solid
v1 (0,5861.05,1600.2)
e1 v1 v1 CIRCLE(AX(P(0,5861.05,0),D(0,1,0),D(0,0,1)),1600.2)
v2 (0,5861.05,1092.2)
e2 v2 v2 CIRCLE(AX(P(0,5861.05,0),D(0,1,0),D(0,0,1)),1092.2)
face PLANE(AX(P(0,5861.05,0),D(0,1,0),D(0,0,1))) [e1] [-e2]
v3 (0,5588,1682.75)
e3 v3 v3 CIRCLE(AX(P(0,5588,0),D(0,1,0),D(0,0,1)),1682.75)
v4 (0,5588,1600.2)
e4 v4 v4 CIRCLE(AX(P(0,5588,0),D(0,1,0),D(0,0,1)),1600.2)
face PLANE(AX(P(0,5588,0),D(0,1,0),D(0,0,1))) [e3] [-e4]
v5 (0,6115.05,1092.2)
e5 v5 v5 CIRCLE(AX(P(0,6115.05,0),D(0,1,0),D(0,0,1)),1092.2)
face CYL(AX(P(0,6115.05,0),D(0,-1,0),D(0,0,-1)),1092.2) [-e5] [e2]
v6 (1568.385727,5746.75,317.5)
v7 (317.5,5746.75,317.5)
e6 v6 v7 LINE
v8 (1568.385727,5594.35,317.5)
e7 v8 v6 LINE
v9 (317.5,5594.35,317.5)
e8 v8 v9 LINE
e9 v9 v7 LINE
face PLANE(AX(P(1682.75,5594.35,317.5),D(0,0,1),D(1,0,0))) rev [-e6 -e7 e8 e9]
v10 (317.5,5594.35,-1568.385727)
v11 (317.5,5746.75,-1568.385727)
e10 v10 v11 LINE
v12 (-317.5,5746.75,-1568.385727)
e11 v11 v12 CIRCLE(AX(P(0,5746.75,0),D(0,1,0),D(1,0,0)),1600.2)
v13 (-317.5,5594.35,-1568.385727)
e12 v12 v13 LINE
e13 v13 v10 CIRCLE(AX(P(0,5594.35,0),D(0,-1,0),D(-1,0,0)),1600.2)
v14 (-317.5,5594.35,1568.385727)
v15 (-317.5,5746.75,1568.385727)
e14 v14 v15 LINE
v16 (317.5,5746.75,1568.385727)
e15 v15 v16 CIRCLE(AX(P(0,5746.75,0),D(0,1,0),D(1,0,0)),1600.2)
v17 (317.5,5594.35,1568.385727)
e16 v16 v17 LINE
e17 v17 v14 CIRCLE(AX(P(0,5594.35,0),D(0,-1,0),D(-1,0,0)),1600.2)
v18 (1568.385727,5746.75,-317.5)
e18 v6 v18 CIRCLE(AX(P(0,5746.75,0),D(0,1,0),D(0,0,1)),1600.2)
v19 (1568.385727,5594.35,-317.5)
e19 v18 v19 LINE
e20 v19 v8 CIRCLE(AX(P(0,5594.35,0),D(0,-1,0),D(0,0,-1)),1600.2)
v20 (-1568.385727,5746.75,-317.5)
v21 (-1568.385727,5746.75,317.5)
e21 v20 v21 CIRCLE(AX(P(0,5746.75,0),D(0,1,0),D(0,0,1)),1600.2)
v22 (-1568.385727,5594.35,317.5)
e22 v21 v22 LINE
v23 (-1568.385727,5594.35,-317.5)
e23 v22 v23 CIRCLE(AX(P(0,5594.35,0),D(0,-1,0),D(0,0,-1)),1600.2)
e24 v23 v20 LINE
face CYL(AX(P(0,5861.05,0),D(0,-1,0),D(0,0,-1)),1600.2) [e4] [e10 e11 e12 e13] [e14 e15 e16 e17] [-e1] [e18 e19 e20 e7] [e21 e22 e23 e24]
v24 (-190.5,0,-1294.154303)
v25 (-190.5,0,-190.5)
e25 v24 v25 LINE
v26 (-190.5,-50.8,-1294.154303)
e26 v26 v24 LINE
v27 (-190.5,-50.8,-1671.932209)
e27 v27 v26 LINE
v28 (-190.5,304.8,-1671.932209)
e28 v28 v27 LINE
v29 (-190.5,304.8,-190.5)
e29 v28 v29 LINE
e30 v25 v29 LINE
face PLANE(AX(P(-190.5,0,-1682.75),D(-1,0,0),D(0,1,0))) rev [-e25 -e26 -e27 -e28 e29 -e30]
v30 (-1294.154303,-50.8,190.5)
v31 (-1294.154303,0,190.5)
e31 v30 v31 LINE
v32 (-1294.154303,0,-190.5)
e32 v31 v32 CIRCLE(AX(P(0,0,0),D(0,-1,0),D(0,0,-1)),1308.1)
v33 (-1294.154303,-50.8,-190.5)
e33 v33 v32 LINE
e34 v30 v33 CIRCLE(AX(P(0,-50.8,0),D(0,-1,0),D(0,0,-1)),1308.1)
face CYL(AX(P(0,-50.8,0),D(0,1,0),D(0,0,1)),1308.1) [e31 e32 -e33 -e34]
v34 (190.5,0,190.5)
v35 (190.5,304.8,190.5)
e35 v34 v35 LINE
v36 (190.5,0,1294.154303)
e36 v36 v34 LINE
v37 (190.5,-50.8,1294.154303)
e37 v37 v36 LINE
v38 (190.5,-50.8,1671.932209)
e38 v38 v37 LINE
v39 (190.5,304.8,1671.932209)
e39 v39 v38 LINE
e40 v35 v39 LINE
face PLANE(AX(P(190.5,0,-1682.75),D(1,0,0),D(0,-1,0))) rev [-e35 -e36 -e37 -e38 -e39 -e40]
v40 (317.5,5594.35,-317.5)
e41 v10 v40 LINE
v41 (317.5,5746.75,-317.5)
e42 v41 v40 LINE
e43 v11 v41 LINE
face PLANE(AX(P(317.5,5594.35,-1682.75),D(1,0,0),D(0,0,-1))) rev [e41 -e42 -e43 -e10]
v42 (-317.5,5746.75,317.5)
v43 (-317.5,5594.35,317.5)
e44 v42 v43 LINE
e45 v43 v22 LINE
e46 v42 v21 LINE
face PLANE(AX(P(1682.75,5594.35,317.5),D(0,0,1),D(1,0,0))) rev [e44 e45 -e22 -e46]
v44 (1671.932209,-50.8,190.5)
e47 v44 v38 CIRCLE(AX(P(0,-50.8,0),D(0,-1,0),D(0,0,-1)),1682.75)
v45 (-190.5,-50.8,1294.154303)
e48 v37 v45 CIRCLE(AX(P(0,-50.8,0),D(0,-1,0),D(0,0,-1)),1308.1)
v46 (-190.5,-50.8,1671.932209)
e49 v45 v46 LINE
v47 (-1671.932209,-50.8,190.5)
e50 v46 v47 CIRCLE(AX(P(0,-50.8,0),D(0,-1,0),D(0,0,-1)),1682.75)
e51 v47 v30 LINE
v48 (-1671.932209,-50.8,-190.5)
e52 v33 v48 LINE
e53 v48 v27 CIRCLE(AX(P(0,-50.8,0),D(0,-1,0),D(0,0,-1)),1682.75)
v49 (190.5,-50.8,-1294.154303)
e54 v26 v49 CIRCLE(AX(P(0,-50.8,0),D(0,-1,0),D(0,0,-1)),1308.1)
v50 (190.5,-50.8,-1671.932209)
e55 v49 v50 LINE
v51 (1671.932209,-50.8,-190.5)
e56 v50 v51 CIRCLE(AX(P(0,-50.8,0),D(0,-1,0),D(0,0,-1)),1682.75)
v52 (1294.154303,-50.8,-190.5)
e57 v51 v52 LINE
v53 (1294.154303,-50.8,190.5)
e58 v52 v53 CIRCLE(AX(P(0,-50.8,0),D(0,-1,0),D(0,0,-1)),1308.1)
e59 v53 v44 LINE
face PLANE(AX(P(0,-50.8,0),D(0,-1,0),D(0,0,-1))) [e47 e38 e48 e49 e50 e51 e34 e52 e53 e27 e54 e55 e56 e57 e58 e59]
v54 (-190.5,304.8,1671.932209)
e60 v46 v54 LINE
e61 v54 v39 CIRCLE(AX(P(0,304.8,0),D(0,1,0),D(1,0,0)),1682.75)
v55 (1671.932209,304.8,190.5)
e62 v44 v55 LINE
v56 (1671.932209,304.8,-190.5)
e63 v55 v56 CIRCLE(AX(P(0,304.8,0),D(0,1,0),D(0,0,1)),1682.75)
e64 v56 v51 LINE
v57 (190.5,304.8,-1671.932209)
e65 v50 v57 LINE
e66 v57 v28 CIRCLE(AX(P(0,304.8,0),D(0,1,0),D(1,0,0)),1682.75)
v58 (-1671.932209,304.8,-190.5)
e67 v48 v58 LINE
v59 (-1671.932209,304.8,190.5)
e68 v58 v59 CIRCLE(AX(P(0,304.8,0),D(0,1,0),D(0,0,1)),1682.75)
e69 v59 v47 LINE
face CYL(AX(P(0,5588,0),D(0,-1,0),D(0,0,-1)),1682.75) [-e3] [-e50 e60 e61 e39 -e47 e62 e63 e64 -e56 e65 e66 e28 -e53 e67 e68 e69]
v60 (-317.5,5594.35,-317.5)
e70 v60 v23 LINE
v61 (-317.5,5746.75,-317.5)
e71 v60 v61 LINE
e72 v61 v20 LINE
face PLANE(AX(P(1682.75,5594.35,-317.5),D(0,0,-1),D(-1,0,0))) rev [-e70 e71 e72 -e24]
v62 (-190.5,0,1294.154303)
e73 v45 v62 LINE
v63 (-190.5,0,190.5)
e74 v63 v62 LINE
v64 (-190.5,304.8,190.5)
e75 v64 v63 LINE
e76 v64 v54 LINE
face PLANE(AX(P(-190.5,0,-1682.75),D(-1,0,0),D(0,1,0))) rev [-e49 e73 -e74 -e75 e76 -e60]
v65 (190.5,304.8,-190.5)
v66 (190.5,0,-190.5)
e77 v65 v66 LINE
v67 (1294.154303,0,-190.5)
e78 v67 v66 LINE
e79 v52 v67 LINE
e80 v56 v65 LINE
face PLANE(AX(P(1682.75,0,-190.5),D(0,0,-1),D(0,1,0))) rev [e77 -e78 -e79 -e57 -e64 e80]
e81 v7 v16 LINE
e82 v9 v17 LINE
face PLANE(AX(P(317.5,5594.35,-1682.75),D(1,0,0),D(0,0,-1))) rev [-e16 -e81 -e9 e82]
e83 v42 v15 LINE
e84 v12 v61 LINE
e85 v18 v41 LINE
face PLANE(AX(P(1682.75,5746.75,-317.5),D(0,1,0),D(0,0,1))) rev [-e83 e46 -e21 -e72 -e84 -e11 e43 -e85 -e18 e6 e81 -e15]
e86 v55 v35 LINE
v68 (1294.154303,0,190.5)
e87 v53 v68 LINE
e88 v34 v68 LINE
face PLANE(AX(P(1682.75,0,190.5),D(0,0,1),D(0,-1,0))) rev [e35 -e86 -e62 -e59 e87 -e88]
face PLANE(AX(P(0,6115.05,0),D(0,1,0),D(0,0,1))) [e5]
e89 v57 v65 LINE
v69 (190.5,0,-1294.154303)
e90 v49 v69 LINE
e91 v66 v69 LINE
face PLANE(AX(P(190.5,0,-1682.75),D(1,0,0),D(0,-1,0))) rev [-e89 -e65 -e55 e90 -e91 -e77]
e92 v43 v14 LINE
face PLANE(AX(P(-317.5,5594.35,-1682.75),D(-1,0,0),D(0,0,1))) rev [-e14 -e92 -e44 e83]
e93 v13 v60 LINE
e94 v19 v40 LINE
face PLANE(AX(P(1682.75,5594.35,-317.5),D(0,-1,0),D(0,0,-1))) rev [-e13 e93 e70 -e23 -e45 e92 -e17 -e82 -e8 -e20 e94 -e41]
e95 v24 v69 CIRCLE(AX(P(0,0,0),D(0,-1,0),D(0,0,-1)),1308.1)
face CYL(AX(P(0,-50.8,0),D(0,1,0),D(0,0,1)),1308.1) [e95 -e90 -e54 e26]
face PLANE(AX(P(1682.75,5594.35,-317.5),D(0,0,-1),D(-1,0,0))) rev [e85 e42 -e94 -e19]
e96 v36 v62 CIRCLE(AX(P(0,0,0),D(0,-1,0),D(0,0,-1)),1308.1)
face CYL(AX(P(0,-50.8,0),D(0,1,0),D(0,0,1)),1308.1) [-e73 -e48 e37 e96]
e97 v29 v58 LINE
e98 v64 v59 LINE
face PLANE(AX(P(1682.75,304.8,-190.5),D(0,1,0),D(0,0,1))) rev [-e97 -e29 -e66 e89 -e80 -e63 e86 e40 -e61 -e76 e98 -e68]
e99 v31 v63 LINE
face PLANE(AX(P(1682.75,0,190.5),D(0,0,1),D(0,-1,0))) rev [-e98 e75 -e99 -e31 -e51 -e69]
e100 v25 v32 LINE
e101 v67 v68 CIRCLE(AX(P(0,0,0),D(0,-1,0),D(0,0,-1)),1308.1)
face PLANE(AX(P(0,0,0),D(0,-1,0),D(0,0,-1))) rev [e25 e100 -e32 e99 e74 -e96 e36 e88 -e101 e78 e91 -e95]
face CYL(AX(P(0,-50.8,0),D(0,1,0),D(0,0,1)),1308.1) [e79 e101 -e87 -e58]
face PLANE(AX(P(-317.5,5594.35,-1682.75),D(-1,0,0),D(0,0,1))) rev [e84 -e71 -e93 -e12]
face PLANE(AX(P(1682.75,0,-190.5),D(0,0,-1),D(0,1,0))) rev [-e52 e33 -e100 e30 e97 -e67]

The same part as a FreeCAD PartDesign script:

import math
import FreeCAD as App
import Part
import Sketcher
Q = App.Units.Quantity

doc = App.newDocument("Part")
body = doc.addObject("PartDesign::Body", "Body")

# Sketch on XZ plane
sketch1 = body.newObject("Sketcher::SketchObject", "Sketch")
sketch1.AttachmentSupport = (doc.getObject("XZ_Plane"), [""])
sketch1.MapMode = "FlatFace"
sketch1.addGeometry(Part.Circle(App.Vector(0, 0, 0), App.Vector(0, 0, 1), 1683), False)
sketch1.addConstraint(Sketcher.Constraint("Coincident", 0, 3, -1, 1))
sketch1.addConstraint(Sketcher.Constraint("Diameter", 0, Q("132.5 in")))
pad1 = body.newObject("PartDesign::Pad", "Pad")
pad1.Profile = sketch1
pad1.Length = Q("220 in")
pad1.Reversed = True

# Sketch on XZ plane
sketch2 = body.newObject("Sketcher::SketchObject", "Sketch001")
sketch2.AttachmentSupport = (doc.getObject("XZ_Plane"), [""])
sketch2.MapMode = "FlatFace"
sketch2.AttachmentOffset = App.Placement(App.Vector(0, 0, -220 * 25.4), App.Rotation())
sketch2.addGeometry(Part.Circle(App.Vector(0, 0, 0), App.Vector(0, 0, 1), 1600), False)
sketch2.addConstraint(Sketcher.Constraint("Coincident", 0, 3, -1, 1))
sketch2.addConstraint(Sketcher.Constraint("Diameter", 0, Q("126 in")))
pad2 = body.newObject("PartDesign::Pad", "Pad001")
pad2.Profile = sketch2
pad2.Length = Q("10.75 in")
pad2.Reversed = True

# Sketch on XZ plane
sketch3 = body.newObject("Sketcher::SketchObject", "Sketch002")
sketch3.AttachmentSupport = (doc.getObject("XZ_Plane"), [""])
sketch3.MapMode = "FlatFace"
sketch3.AttachmentOffset = App.Placement(App.Vector(0, 0, -230.75 * 25.4), App.Rotation())
sketch3.addGeometry(Part.Circle(App.Vector(0, 0, 0), App.Vector(0, 0, 1), 1092), False)
sketch3.addConstraint(Sketcher.Constraint("Coincident", 0, 3, -1, 1))
sketch3.addConstraint(Sketcher.Constraint("Diameter", 0, Q("86 in")))
pad3 = body.newObject("PartDesign::Pad", "Pad002")
pad3.Profile = sketch3
pad3.Length = Q("10 in")
pad3.Reversed = True

# Sketch on YZ plane
sketch4 = body.newObject("Sketcher::SketchObject", "Sketch003")
sketch4.AttachmentSupport = (doc.getObject("YZ_Plane"), [""])
sketch4.MapMode = "FlatFace"
sketch4.AttachmentOffset = App.Placement(App.Vector(0, 0, -66.25 * 25.4), App.Rotation())
sketch4.addGeometry(Part.LineSegment(App.Vector(305, -190, 0), App.Vector(0, -190, 0)), False)
sketch4.addGeometry(Part.LineSegment(App.Vector(0, -190, 0), App.Vector(0, 190, 0)), False)
sketch4.addGeometry(Part.LineSegment(App.Vector(0, 190, 0), App.Vector(305, 190, 0)), False)
sketch4.addGeometry(Part.LineSegment(App.Vector(305, 190, 0), App.Vector(305, -190, 0)), False)
sketch4.addConstraint(Sketcher.Constraint("Coincident", 0, 2, 1, 1))
sketch4.addConstraint(Sketcher.Constraint("Coincident", 1, 2, 2, 1))
sketch4.addConstraint(Sketcher.Constraint("Coincident", 2, 2, 3, 1))
sketch4.addConstraint(Sketcher.Constraint("Coincident", 3, 2, 0, 1))
sketch4.addConstraint(Sketcher.Constraint("Horizontal", 0))
sketch4.addConstraint(Sketcher.Constraint("Vertical", 1))
sketch4.addConstraint(Sketcher.Constraint("Horizontal", 2))
sketch4.addConstraint(Sketcher.Constraint("Vertical", 3))
sketch4.addConstraint(Sketcher.Constraint("Symmetric", 0, 2, 1, 2, -1, 1))
sketch4.addConstraint(Sketcher.Constraint("DistanceX", 0, 2, 0, 1, Q("12 in")))
sketch4.addConstraint(Sketcher.Constraint("DistanceY", 1, 1, 1, 2, Q("15 in")))
pocket1 = body.newObject("PartDesign::Pocket", "Pocket")
pocket1.Profile = sketch4
pocket1.Type = "ThroughAll"
pocket1.Reversed = True
doc.recompute()

polarpattern = body.newObject("PartDesign::PolarPattern", "PolarPattern")
polarpattern.Originals = [pocket1]
polarpattern.Axis = (doc.getObject("Y_Axis"), [""])
polarpattern.Angle = 90
polarpattern.Occurrences = 2
polarpattern.Reversed = True
body.Tip = polarpattern

# Sketch on YZ plane
sketch5 = body.newObject("Sketcher::SketchObject", "Sketch004")
sketch5.AttachmentSupport = (doc.getObject("YZ_Plane"), [""])
sketch5.MapMode = "FlatFace"
sketch5.AttachmentOffset = App.Placement(App.Vector(0, 0, -66.25 * 25.4), App.Rotation())
sketch5.addGeometry(Part.LineSegment(App.Vector(5747, -318, 0), App.Vector(5594, -318, 0)), False)
sketch5.addGeometry(Part.LineSegment(App.Vector(5594, -318, 0), App.Vector(5594, 318, 0)), False)
sketch5.addGeometry(Part.LineSegment(App.Vector(5594, 318, 0), App.Vector(5747, 318, 0)), False)
sketch5.addGeometry(Part.LineSegment(App.Vector(5747, 318, 0), App.Vector(5747, -318, 0)), False)
sketch5.addConstraint(Sketcher.Constraint("Coincident", 0, 2, 1, 1))
sketch5.addConstraint(Sketcher.Constraint("Coincident", 1, 2, 2, 1))
sketch5.addConstraint(Sketcher.Constraint("Coincident", 2, 2, 3, 1))
sketch5.addConstraint(Sketcher.Constraint("Coincident", 3, 2, 0, 1))
sketch5.addConstraint(Sketcher.Constraint("Horizontal", 0))
sketch5.addConstraint(Sketcher.Constraint("Vertical", 1))
sketch5.addConstraint(Sketcher.Constraint("Horizontal", 2))
sketch5.addConstraint(Sketcher.Constraint("Vertical", 3))
sketch5.addConstraint(Sketcher.Constraint("DistanceX", 0, 2, 0, 1, Q("6 in")))
sketch5.addConstraint(Sketcher.Constraint("DistanceY", 1, 1, 1, 2, Q("25 in")))
sketch5.addConstraint(Sketcher.Constraint("DistanceY", 0, 2, -1, 1, Q("12.5 in")))
sketch5.addConstraint(Sketcher.Constraint("DistanceX", -1, 1, 0, 2, Q("220.25 in")))
pocket2 = body.newObject("PartDesign::Pocket", "Pocket001")
pocket2.Profile = sketch5
pocket2.Type = "ThroughAll"
pocket2.Reversed = True
doc.recompute()

polarpattern2 = body.newObject("PartDesign::PolarPattern", "PolarPattern001")
polarpattern2.Originals = [pocket2]
polarpattern2.Axis = (doc.getObject("Y_Axis"), [""])
polarpattern2.Angle = 90
polarpattern2.Occurrences = 2
polarpattern2.Reversed = True
body.Tip = polarpattern2

# Sketch on XZ plane
sketch6 = body.newObject("Sketcher::SketchObject", "Sketch005")
sketch6.AttachmentSupport = (doc.getObject("XZ_Plane"), [""])
sketch6.MapMode = "FlatFace"
sketch6.AttachmentOffset = App.Placement(App.Vector(0, 0, 2 * 25.4), App.Rotation())
sketch6.addGeometry(Part.LineSegment(App.Vector(-190, 1294, 0), App.Vector(-190, 1672, 0)), False)
sketch6.addGeometry(Part.ArcOfCircle(Part.Circle(App.Vector(0, 0, 0), App.Vector(0, 0, 1), 1683), math.radians(97), math.radians(173)), False)
sketch6.addGeometry(Part.LineSegment(App.Vector(-1672, 190, 0), App.Vector(-1294, 190, 0)), False)
sketch6.addGeometry(Part.ArcOfCircle(Part.Circle(App.Vector(0, 0, 0), App.Vector(0, 0, 1), 1308), math.radians(171.63), math.radians(188.37)), False)
sketch6.addGeometry(Part.LineSegment(App.Vector(-1294, -190, 0), App.Vector(-1672, -190, 0)), False)
sketch6.addGeometry(Part.ArcOfCircle(Part.Circle(App.Vector(0, 0, 0), App.Vector(0, 0, 1), 1683), math.radians(-173), math.radians(-97)), False)
sketch6.addGeometry(Part.LineSegment(App.Vector(-190, -1672, 0), App.Vector(-190, -1294, 0)), False)
sketch6.addGeometry(Part.ArcOfCircle(Part.Circle(App.Vector(0, 0, 0), App.Vector(0, 0, 1), 1308), math.radians(-98.37), math.radians(-81.63)), False)
sketch6.addGeometry(Part.LineSegment(App.Vector(190, -1294, 0), App.Vector(190, -1672, 0)), False)
sketch6.addGeometry(Part.ArcOfCircle(Part.Circle(App.Vector(0, 0, 0), App.Vector(0, 0, 1), 1683), math.radians(-83), math.radians(-7)), False)
sketch6.addGeometry(Part.LineSegment(App.Vector(1672, -190, 0), App.Vector(1294, -190, 0)), False)
sketch6.addGeometry(Part.ArcOfCircle(Part.Circle(App.Vector(0, 0, 0), App.Vector(0, 0, 1), 1308), math.radians(-8.37), math.radians(8.37)), False)
sketch6.addGeometry(Part.LineSegment(App.Vector(1294, 190, 0), App.Vector(1672, 190, 0)), False)
sketch6.addGeometry(Part.ArcOfCircle(Part.Circle(App.Vector(0, 0, 0), App.Vector(0, 0, 1), 1683), math.radians(7), math.radians(83)), False)
sketch6.addGeometry(Part.LineSegment(App.Vector(190, 1672, 0), App.Vector(190, 1294, 0)), False)
sketch6.addGeometry(Part.ArcOfCircle(Part.Circle(App.Vector(0, 0, 0), App.Vector(0, 0, 1), 1308), math.radians(81.63), math.radians(98.37)), False)
sketch6.addConstraint(Sketcher.Constraint("Coincident", 0, 2, 1, 1))
sketch6.addConstraint(Sketcher.Constraint("Coincident", 1, 2, 2, 1))
sketch6.addConstraint(Sketcher.Constraint("Coincident", 2, 2, 3, 1))
sketch6.addConstraint(Sketcher.Constraint("Coincident", 3, 2, 4, 1))
sketch6.addConstraint(Sketcher.Constraint("Coincident", 4, 2, 5, 1))
sketch6.addConstraint(Sketcher.Constraint("Coincident", 5, 2, 6, 1))
sketch6.addConstraint(Sketcher.Constraint("Coincident", 6, 2, 7, 1))
sketch6.addConstraint(Sketcher.Constraint("Coincident", 7, 2, 8, 1))
sketch6.addConstraint(Sketcher.Constraint("Coincident", 8, 2, 9, 1))
sketch6.addConstraint(Sketcher.Constraint("Coincident", 9, 2, 10, 1))
sketch6.addConstraint(Sketcher.Constraint("Coincident", 10, 2, 11, 1))
sketch6.addConstraint(Sketcher.Constraint("Coincident", 11, 2, 12, 1))
sketch6.addConstraint(Sketcher.Constraint("Coincident", 12, 2, 13, 1))
sketch6.addConstraint(Sketcher.Constraint("Coincident", 13, 2, 14, 1))
sketch6.addConstraint(Sketcher.Constraint("Coincident", 14, 2, 15, 1))
sketch6.addConstraint(Sketcher.Constraint("Coincident", 15, 2, 0, 1))
sketch6.addConstraint(Sketcher.Constraint("Vertical", 0))
sketch6.addConstraint(Sketcher.Constraint("Horizontal", 2))
sketch6.addConstraint(Sketcher.Constraint("Horizontal", 4))
sketch6.addConstraint(Sketcher.Constraint("Vertical", 6))
sketch6.addConstraint(Sketcher.Constraint("Vertical", 8))
sketch6.addConstraint(Sketcher.Constraint("Horizontal", 10))
sketch6.addConstraint(Sketcher.Constraint("Horizontal", 12))
sketch6.addConstraint(Sketcher.Constraint("Vertical", 14))
sketch6.addConstraint(Sketcher.Constraint("Coincident", 1, 3, -1, 1))
sketch6.addConstraint(Sketcher.Constraint("Coincident", 3, 3, -1, 1))
sketch6.addConstraint(Sketcher.Constraint("Coincident", 5, 3, -1, 1))
sketch6.addConstraint(Sketcher.Constraint("Coincident", 7, 3, -1, 1))
sketch6.addConstraint(Sketcher.Constraint("Coincident", 9, 3, -1, 1))
sketch6.addConstraint(Sketcher.Constraint("Coincident", 11, 3, -1, 1))
sketch6.addConstraint(Sketcher.Constraint("Coincident", 13, 3, -1, 1))
sketch6.addConstraint(Sketcher.Constraint("Coincident", 15, 3, -1, 1))
sketch6.addConstraint(Sketcher.Constraint("Equal", 1, 5))
sketch6.addConstraint(Sketcher.Constraint("Equal", 3, 7))
sketch6.addConstraint(Sketcher.Constraint("Equal", 5, 9))
sketch6.addConstraint(Sketcher.Constraint("Equal", 7, 11))
sketch6.addConstraint(Sketcher.Constraint("Equal", 9, 13))
sketch6.addConstraint(Sketcher.Constraint("Equal", 11, 15))
sketch6.addConstraint(Sketcher.Constraint("Equal", 2, 4))
sketch6.addConstraint(Sketcher.Constraint("Equal", 4, 10))
sketch6.addConstraint(Sketcher.Constraint("Equal", 10, 12))
sketch6.addConstraint(Sketcher.Constraint("Equal", 12, 0))
sketch6.addConstraint(Sketcher.Constraint("Equal", 0, 6))
sketch6.addConstraint(Sketcher.Constraint("Equal", 6, 8))
sketch6.addConstraint(Sketcher.Constraint("Equal", 8, 14))
sketch6.addConstraint(Sketcher.Constraint("Radius", 3, Q("51.5 in")))
sketch6.addConstraint(Sketcher.Constraint("Radius", 1, Q("66.25 in")))
sketch6.addConstraint(Sketcher.Constraint("DistanceY", 4, 2, 2, 2, Q("15 in")))
pad4 = body.newObject("PartDesign::Pad", "Pad003")
pad4.Profile = sketch6
pad4.Length = Q("2 in")
pad4.Reversed = True

doc.recompute()
